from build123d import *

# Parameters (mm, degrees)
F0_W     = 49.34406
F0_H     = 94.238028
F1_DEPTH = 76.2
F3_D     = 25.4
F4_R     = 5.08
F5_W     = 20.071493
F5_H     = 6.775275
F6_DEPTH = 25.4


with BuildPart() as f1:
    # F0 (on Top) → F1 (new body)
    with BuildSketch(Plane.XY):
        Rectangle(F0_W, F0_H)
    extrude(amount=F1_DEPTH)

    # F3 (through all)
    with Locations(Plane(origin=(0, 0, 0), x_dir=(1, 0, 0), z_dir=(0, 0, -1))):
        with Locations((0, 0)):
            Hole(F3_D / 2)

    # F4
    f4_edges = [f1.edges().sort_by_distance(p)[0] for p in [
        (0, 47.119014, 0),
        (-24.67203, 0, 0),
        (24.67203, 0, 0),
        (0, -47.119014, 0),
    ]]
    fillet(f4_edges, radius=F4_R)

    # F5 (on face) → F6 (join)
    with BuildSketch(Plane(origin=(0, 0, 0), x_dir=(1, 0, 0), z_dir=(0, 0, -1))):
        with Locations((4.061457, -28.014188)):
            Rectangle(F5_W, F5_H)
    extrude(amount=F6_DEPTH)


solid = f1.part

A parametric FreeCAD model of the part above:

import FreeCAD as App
import Part
import Sketcher

V = App.Vector
Q = App.Units.Quantity


def edges_at(feature, points):
    """Names of the edges that pass closest to the given points."""
    edges = feature.Shape.Edges
    near = lambda p: min(range(len(edges)), key=lambda i: edges[i].distToShape(Part.Vertex(*p))[0])
    return sorted({f"Edge{near(p) + 1}" for p in points})

doc = App.newDocument("Part")
body = doc.addObject("PartDesign::Body", "Body")

# Sketch on XY plane
sketch1 = doc.addObject("Sketcher::SketchObject", "Sketch")
body.addObject(sketch1)
sketch1.AttachmentSupport = (doc.XY_Plane, [""])
sketch1.MapMode = "FlatFace"
sketch1.addGeometry(Part.LineSegment(V(-24.67203, 47.119014, 0), V(-24.67203, -47.119014, 0)), False)
sketch1.addGeometry(Part.LineSegment(V(-24.67203, -47.119014, 0), V(24.67203, -47.119014, 0)), False)
sketch1.addGeometry(Part.LineSegment(V(24.67203, -47.119014, 0), V(24.67203, 47.119014, 0)), False)
sketch1.addGeometry(Part.LineSegment(V(24.67203, 47.119014, 0), V(-24.67203, 47.119014, 0)), False)
sketch1.addConstraint(Sketcher.Constraint("Coincident", 0, 2, 1, 1))
sketch1.addConstraint(Sketcher.Constraint("Coincident", 1, 2, 2, 1))
sketch1.addConstraint(Sketcher.Constraint("Coincident", 2, 2, 3, 1))
sketch1.addConstraint(Sketcher.Constraint("Coincident", 3, 2, 0, 1))
sketch1.addConstraint(Sketcher.Constraint("Vertical", 0))
sketch1.addConstraint(Sketcher.Constraint("Horizontal", 1))
sketch1.addConstraint(Sketcher.Constraint("Vertical", 2))
sketch1.addConstraint(Sketcher.Constraint("Horizontal", 3))
sketch1.addConstraint(Sketcher.Constraint("Symmetric", 0, 2, 2, 2, -1, 1))
sketch1.addConstraint(Sketcher.Constraint("DistanceX", 1, 1, 1, 2, Q("49.34406 mm")))
sketch1.addConstraint(Sketcher.Constraint("DistanceY", 0, 2, 0, 1, Q("94.238028 mm")))
pad1 = doc.addObject("PartDesign::Pad", "Pad")
body.addObject(pad1)
pad1.Profile = sketch1
pad1.Length = Q("3 in")

# Sketch on XY plane
sketch2 = doc.addObject("Sketcher::SketchObject", "Sketch001")
body.addObject(sketch2)
sketch2.AttachmentSupport = (doc.XY_Plane, [""])
sketch2.MapMode = "FlatFace"
sketch2.addGeometry(Part.Circle(V(0, 0, 0), V(0, 0, 1), 12.7), False)
sketch2.addConstraint(Sketcher.Constraint("Coincident", 0, 3, -1, 1))
sketch2.addConstraint(Sketcher.Constraint("Diameter", 0, Q("1 in")))
doc.recompute()
hole = doc.addObject("PartDesign::Hole", "Hole")
body.addObject(hole)
hole.Profile = sketch2
hole.ThreadType = "None"
hole.Diameter = Q("1 in")
hole.DepthType = "ThroughAll"
hole.Reversed = True
doc.recompute()

fillet = doc.addObject("PartDesign::Fillet", "Fillet")
body.addObject(fillet)
fillet.Base = (hole, edges_at(hole, [
    (0, 47.119, 0),
    (-24.672, 0, 0),
    (24.672, 0, 0),
    (0, -47.119, 0),
]))
fillet.Radius = Q("0.2 in")

# Sketch on XY plane
sketch3 = doc.addObject("Sketcher::SketchObject", "Sketch002")
body.addObject(sketch3)
sketch3.AttachmentSupport = (doc.XY_Plane, [""])
sketch3.MapMode = "FlatFace"
sketch3.addGeometry(Part.LineSegment(V(-5.97429, 24.626551, 0), V(-5.97429, 31.401826, 0)), False)
sketch3.addGeometry(Part.LineSegment(V(-5.97429, 31.401826, 0), V(14.097204, 31.401826, 0)), False)
sketch3.addGeometry(Part.LineSegment(V(14.097204, 31.401826, 0), V(14.097204, 24.626551, 0)), False)
sketch3.addGeometry(Part.LineSegment(V(14.097204, 24.626551, 0), V(-5.97429, 24.626551, 0)), False)
sketch3.addConstraint(Sketcher.Constraint("Coincident", 0, 2, 1, 1))
sketch3.addConstraint(Sketcher.Constraint("Coincident", 1, 2, 2, 1))
sketch3.addConstraint(Sketcher.Constraint("Coincident", 2, 2, 3, 1))
sketch3.addConstraint(Sketcher.Constraint("Coincident", 3, 2, 0, 1))
sketch3.addConstraint(Sketcher.Constraint("Vertical", 0))
sketch3.addConstraint(Sketcher.Constraint("Horizontal", 1))
sketch3.addConstraint(Sketcher.Constraint("Vertical", 2))
sketch3.addConstraint(Sketcher.Constraint("Horizontal", 3))
sketch3.addConstraint(Sketcher.Constraint("DistanceX", 1, 1, 1, 2, Q("20.071493 mm")))
sketch3.addConstraint(Sketcher.Constraint("DistanceY", 0, 1, 0, 2, Q("6.775275 mm")))
sketch3.addConstraint(Sketcher.Constraint("DistanceX", 0, 2, -1, 1, Q("5.97429 mm")))
sketch3.addConstraint(Sketcher.Constraint("DistanceY", -1, 1, 2, 2, Q("24.626551 mm")))
pad2 = doc.addObject("PartDesign::Pad", "Pad001")
body.addObject(pad2)
pad2.Profile = sketch3
pad2.Length = Q("1 in")
pad2.Reversed = True

doc.recompute()
